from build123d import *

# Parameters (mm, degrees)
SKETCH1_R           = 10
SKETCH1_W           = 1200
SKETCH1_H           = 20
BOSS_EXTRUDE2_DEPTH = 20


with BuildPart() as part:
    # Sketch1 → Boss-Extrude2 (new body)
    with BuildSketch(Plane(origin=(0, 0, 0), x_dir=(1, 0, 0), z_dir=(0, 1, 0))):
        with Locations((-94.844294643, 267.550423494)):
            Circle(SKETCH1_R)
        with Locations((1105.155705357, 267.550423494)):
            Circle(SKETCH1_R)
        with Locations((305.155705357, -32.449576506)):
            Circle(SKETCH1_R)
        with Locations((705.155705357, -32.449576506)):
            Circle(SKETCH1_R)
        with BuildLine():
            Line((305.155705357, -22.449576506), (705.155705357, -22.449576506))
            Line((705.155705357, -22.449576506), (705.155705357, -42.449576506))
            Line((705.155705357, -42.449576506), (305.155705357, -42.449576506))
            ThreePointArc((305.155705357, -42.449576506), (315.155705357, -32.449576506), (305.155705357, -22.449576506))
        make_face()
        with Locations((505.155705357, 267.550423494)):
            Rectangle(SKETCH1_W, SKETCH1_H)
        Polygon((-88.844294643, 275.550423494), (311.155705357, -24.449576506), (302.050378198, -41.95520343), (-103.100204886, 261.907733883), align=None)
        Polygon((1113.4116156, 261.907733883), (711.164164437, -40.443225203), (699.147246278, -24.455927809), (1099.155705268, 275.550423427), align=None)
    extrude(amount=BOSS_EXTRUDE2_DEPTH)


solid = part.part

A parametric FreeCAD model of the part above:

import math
import FreeCAD as App
import Part
import Sketcher

V = App.Vector
Q = App.Units.Quantity

doc = App.newDocument("Part")
body = doc.addObject("PartDesign::Body", "Body")

# Sketch on XZ plane
sketch1 = body.newObject("Sketcher::SketchObject", "Sketch")
sketch1.AttachmentSupport = (doc.getObject("XZ_Plane"), [""])
sketch1.MapMode = "FlatFace"
sketch1.addGeometry([
    Part.ArcOfCircle(Part.Circle(V(705, 32, 0), V(0, 0, 1), 10), math.radians(53), math.radians(90)),  # 0
    Part.LineSegment(V(711, 40, 0), V(1108, -258, 0)),  # 1
    Part.ArcOfCircle(Part.Circle(V(1105, -268, 0), V(0, 0, 1), 10), math.radians(-90), math.radians(72)),  # 2
    Part.LineSegment(V(1105, -278, 0), V(-95, -278, 0)),  # 3
    Part.ArcOfCircle(Part.Circle(V(-95, -268, 0), V(0, 0, 1), 10), math.radians(108), math.radians(270)),  # 4
    Part.LineSegment(V(-98, -258, 0), V(297, 38, 0)),  # 5
    Part.ArcOfCircle(Part.Circle(V(305, 32, 0), V(0, 0, 1), 10), math.radians(90), math.radians(146)),  # 6
    Part.LineSegment(V(305, 42, 0), V(705, 42, 0)),  # 7
    Part.LineSegment(V(308, 22, 0), V(-65, -258, 0)),  # 8
    Part.LineSegment(V(-65, -258, 0), V(1075, -258, 0)),  # 9
    Part.LineSegment(V(1075, -258, 0), V(702, 22, 0)),  # 10
    Part.LineSegment(V(702, 22, 0), V(308, 22, 0)),  # 11
], False)
sketch1.addConstraint([
    Sketcher.Constraint("Tangent", 0, 1, 1, 1),
    Sketcher.Constraint("Coincident", 1, 2, 2, 2),
    Sketcher.Constraint("Tangent", 2, 1, 3, 1),
    Sketcher.Constraint("Tangent", 3, 2, 4, 2),
    Sketcher.Constraint("Coincident", 4, 1, 5, 1),
    Sketcher.Constraint("Coincident", 5, 2, 6, 2),
    Sketcher.Constraint("Tangent", 6, 1, 7, 1),
    Sketcher.Constraint("Tangent", 7, 2, 0, 2),
    Sketcher.Constraint("Coincident", 8, 2, 9, 1),
    Sketcher.Constraint("Coincident", 9, 2, 10, 1),
    Sketcher.Constraint("Coincident", 10, 2, 11, 1),
    Sketcher.Constraint("Coincident", 11, 2, 8, 1),
    Sketcher.Constraint("Horizontal", 3),
    Sketcher.Constraint("Horizontal", 7),
    Sketcher.Constraint("Horizontal", 9),
    Sketcher.Constraint("Horizontal", 11),
    Sketcher.Constraint("Equal", 0, 2),
    Sketcher.Constraint("Equal", 2, 4),
    Sketcher.Constraint("Equal", 4, 6),
    Sketcher.Constraint("Parallel", 5, 8),
    Sketcher.Constraint("Radius", 0, Q("10 mm")),
    Sketcher.Constraint("DistanceX", 3, 2, 3, 1, Q("1200 mm")),
    Sketcher.Constraint("DistanceX", 7, 1, 7, 2, Q("400 mm")),
    Sketcher.Constraint("DistanceX", 9, 1, 9, 2, Q("1140.000001 mm")),
    Sketcher.Constraint("DistanceX", 0, 3, 2, 3, Q("400 mm")),
    Sketcher.Constraint("DistanceY", 2, 3, 0, 3, Q("300 mm")),
    Sketcher.Constraint("DistanceX", 4, 3, 8, 2, Q("30 mm")),
    Sketcher.Constraint("DistanceY", 4, 3, 8, 2, Q("10 mm")),
    Sketcher.Constraint("DistanceY", 10, 2, 0, 3, Q("10 mm")),
    Sketcher.Constraint("Distance", 5, Q("493.561771 mm")),
    Sketcher.Constraint("Distance", 10, Q("466.66666 mm")),
    Sketcher.Constraint("DistanceX", 11, 2, 11, 1, Q("393.333343 mm")),
    Sketcher.Constraint("DistanceX", 4, 1, -1, 1, Q("97.949622 mm")),
    Sketcher.Constraint("DistanceX", 2, 3, 1, 2, Q("3.12543 mm")),
    Sketcher.Constraint("DistanceY", -1, 1, 0, 3, Q("32.449577 mm")),
])
pad1 = body.newObject("PartDesign::Pad", "Pad")
pad1.Profile = sketch1
pad1.Length = 20
pad1.Reversed = True

doc.recompute()
